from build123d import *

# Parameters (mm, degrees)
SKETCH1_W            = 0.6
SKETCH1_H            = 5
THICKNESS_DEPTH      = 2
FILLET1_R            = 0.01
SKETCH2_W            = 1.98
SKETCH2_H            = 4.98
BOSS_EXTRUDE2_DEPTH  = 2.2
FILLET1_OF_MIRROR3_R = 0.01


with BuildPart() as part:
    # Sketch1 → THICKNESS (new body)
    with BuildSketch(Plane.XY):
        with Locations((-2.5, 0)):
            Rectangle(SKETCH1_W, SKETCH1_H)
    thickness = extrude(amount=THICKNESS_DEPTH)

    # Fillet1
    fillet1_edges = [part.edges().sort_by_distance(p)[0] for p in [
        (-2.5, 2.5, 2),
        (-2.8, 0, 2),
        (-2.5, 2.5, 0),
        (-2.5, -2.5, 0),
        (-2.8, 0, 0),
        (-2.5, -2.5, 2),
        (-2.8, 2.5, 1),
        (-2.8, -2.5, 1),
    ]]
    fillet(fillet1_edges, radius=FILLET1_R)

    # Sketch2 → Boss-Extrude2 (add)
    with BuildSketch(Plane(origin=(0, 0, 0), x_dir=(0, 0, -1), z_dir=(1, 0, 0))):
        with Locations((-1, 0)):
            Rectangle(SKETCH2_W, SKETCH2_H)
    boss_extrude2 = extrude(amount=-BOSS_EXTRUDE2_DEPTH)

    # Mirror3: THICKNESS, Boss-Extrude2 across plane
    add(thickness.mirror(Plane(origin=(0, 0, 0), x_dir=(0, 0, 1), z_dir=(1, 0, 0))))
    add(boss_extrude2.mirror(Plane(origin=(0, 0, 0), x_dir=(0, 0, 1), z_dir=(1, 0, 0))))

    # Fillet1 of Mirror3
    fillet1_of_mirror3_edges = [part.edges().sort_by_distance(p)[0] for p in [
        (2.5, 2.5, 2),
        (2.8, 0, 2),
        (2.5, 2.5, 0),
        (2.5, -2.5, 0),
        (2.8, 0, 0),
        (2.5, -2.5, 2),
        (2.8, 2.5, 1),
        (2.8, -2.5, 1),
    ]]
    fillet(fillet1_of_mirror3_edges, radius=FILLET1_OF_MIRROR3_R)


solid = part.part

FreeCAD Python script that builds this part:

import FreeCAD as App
import Part
import Sketcher

V = App.Vector
Q = App.Units.Quantity


def edges_at(feature, points):
    """Names of the edges that pass closest to the given points."""
    edges = feature.Shape.Edges
    near = lambda p: min(range(len(edges)), key=lambda i: edges[i].distToShape(Part.Vertex(*p))[0])
    return sorted({f"Edge{near(p) + 1}" for p in points})


def add_polygon(sketch, points):
    """Adds a closed chain of lines whose ends are joined by coincident constraints."""
    first, n = sketch.GeometryCount, len(points)
    for a, b in zip(points, points[1:] + points[:1]):
        sketch.addGeometry(Part.LineSegment(App.Vector(*a, 0), App.Vector(*b, 0)), False)
    for i in range(n):
        sketch.addConstraint(Sketcher.Constraint("Coincident", first + i, 2, first + (i + 1) % n, 1))

doc = App.newDocument("Part")
body = doc.addObject("PartDesign::Body", "Body")

# Sketch on XY plane
sketch1 = body.newObject("Sketcher::SketchObject", "Sketch")
sketch1.AttachmentSupport = (doc.getObject("XY_Plane"), [""])
sketch1.MapMode = "FlatFace"
add_polygon(sketch1, [(-2.8, 2.5), (-2.8, -2.5), (-2.2, -2.5), (-2.2, 2.5)])  # lines 0-3
sketch1.addConstraint([
    Sketcher.Constraint("Vertical", 0),
    Sketcher.Constraint("Horizontal", 1),
    Sketcher.Constraint("Vertical", 2),
    Sketcher.Constraint("Horizontal", 3),
    Sketcher.Constraint("DistanceY", 0, 2, 0, 1, Q("5 mm")),
    Sketcher.Constraint("DistanceX", 1, 1, 1, 2, Q("0.6 mm")),
    Sketcher.Constraint("DistanceX", 0, 2, -1, 1, Q("2.8 mm")),
    Sketcher.Constraint("DistanceY", 0, 2, -1, 1, Q("2.5 mm")),
])
pad1 = body.newObject("PartDesign::Pad", "Pad")
pad1.Profile = sketch1
pad1.Length = 2
doc.recompute()

fillet = body.newObject("PartDesign::Fillet", "Fillet")
fillet.Base = (pad1, edges_at(pad1, [
    (-2.5, 2.5, 2),
    (-2.8, 0, 2),
    (-2.5, 2.5, 0),
    (-2.5, -2.5, 0),
    (-2.8, 0, 0),
    (-2.5, -2.5, 2),
    (-2.8, 2.5, 1),
    (-2.8, -2.5, 1),
]))
fillet.Radius = 0.01

# Sketch on YZ plane
sketch2 = body.newObject("Sketcher::SketchObject", "Sketch001")
sketch2.AttachmentSupport = (doc.getObject("YZ_Plane"), [""])
sketch2.MapMode = "FlatFace"
add_polygon(sketch2, [(2.49, 1.99), (-2.49, 1.99), (-2.49, 0.01), (2.49, 0.01)])  # lines 0-3
sketch2.addConstraint([
    Sketcher.Constraint("Horizontal", 0),
    Sketcher.Constraint("Vertical", 1),
    Sketcher.Constraint("Horizontal", 2),
    Sketcher.Constraint("Vertical", 3),
    Sketcher.Constraint("DistanceX", 0, 2, 0, 1, Q("4.98 mm")),
    Sketcher.Constraint("DistanceY", 1, 2, 1, 1, Q("1.98 mm")),
    Sketcher.Constraint("DistanceX", 0, 2, -1, 1, Q("2.49 mm")),
    Sketcher.Constraint("DistanceY", -1, 1, 0, 2, Q("1.99 mm")),
])
pad2 = body.newObject("PartDesign::Pad", "Pad001")
pad2.Profile = sketch2
pad2.Length = 2.2
pad2.Reversed = True
doc.recompute()

mirrored = body.newObject("PartDesign::Mirrored", "Mirrored")
mirrored.Originals = [pad1, pad2]
mirrored.MirrorPlane = (doc.getObject("YZ_Plane"), [""])
body.Tip = mirrored
doc.recompute()

fillet2 = body.newObject("PartDesign::Fillet", "Fillet001")
fillet2.Base = (mirrored, edges_at(mirrored, [
    (2.5, 2.5, 2),
    (2.8, 0, 2),
    (2.5, 2.5, 0),
    (2.5, -2.5, 0),
    (2.8, 0, 0),
    (2.5, -2.5, 2),
    (2.8, 2.5, 1),
    (2.8, -2.5, 1),
]))
fillet2.Radius = 0.01

doc.recompute()
